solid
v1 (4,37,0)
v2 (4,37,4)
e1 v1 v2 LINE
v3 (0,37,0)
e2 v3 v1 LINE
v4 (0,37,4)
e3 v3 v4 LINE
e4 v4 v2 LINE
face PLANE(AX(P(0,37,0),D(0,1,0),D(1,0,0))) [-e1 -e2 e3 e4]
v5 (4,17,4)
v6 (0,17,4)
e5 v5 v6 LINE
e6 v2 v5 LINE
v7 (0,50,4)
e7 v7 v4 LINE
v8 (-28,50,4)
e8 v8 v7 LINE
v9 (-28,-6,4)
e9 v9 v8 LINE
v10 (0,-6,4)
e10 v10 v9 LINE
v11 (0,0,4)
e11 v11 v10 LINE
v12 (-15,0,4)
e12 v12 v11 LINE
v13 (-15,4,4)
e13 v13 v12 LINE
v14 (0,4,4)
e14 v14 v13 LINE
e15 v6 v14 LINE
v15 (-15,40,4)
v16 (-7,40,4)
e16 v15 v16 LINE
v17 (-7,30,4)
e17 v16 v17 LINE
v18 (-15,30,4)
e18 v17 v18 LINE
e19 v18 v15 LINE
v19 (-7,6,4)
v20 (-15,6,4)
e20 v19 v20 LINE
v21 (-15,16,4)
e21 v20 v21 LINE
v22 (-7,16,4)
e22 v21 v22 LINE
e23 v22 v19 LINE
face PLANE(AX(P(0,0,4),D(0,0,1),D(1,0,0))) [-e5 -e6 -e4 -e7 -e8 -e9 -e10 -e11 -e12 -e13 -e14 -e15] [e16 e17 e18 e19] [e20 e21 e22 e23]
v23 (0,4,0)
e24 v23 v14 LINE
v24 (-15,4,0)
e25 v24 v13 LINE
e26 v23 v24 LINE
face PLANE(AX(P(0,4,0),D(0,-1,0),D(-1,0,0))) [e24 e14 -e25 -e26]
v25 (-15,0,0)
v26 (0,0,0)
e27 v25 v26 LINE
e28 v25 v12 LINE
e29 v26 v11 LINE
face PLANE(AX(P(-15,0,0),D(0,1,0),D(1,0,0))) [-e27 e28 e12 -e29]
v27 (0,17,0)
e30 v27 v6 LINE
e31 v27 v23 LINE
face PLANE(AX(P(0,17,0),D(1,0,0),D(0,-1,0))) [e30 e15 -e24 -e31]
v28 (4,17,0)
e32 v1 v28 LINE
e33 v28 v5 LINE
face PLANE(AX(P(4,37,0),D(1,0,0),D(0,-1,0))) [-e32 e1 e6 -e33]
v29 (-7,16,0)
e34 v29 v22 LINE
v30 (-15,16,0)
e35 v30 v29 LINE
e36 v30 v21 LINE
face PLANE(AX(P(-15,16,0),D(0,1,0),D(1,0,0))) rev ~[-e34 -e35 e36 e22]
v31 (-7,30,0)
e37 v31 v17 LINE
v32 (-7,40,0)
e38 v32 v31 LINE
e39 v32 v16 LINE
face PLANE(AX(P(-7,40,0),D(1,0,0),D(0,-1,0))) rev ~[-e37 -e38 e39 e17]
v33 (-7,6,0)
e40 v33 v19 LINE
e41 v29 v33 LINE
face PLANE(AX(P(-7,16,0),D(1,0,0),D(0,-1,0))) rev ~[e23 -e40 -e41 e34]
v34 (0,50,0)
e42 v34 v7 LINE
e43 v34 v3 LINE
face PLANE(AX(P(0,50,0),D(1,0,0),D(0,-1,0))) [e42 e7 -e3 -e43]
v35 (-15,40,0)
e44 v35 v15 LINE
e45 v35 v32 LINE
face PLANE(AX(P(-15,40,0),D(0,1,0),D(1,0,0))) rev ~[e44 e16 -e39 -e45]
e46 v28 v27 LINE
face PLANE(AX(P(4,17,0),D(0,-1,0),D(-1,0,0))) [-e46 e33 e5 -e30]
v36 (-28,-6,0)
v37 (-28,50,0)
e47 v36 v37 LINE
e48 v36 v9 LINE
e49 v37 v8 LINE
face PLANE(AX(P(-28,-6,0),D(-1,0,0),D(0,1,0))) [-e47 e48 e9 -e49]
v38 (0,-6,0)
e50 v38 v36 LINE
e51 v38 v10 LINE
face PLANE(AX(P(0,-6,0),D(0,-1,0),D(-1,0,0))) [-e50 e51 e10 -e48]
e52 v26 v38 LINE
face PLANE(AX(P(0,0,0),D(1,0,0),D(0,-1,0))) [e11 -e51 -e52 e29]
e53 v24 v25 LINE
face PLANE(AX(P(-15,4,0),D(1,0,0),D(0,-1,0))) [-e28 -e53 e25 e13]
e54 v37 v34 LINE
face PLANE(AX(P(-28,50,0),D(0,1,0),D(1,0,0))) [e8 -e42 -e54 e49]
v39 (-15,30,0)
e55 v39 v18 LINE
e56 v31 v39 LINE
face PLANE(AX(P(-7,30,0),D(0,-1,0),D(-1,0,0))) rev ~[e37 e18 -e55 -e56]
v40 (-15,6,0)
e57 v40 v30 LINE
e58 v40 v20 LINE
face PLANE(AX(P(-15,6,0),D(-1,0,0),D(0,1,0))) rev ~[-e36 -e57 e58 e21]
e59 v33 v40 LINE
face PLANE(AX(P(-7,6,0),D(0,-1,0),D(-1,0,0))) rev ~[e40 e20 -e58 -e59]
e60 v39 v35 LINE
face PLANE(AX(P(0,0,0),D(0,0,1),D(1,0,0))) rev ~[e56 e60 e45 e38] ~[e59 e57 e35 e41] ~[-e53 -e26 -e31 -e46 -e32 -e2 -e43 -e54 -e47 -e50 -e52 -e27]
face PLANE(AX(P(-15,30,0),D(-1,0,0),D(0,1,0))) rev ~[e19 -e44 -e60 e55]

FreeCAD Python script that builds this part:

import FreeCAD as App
import Part
import Sketcher
Q = App.Units.Quantity

doc = App.newDocument("Part")
body = doc.addObject("PartDesign::Body", "Body")

# Sketch on XY plane
sketch1 = body.newObject("Sketcher::SketchObject", "Sketch")
sketch1.AttachmentSupport = (doc.getObject("XY_Plane"), [""])
sketch1.MapMode = "FlatFace"
sketch1.addGeometry([
    Part.LineSegment(App.Vector(0, -6, 0), App.Vector(0, 0, 0)),  # 0
    Part.LineSegment(App.Vector(0, 0, 0), App.Vector(-15, 0, 0)),  # 1
    Part.LineSegment(App.Vector(-15, 0, 0), App.Vector(-15, 4, 0)),  # 2
    Part.LineSegment(App.Vector(-15, 4, 0), App.Vector(0, 4, 0)),  # 3
    Part.LineSegment(App.Vector(0, 4, 0), App.Vector(0, 17, 0)),  # 4
    Part.LineSegment(App.Vector(0, 17, 0), App.Vector(4, 17, 0)),  # 5
    Part.LineSegment(App.Vector(4, 17, 0), App.Vector(4, 37, 0)),  # 6
    Part.LineSegment(App.Vector(4, 37, 0), App.Vector(0, 37, 0)),  # 7
    Part.LineSegment(App.Vector(0, 37, 0), App.Vector(0, 50, 0)),  # 8
    Part.LineSegment(App.Vector(0, 50, 0), App.Vector(-28, 50, 0)),  # 9
    Part.LineSegment(App.Vector(-28, 50, 0), App.Vector(-28, -6, 0)),  # 10
    Part.LineSegment(App.Vector(-28, -6, 0), App.Vector(0, -6, 0)),  # 11
    Part.LineSegment(App.Vector(-7, 16, 0), App.Vector(-7, 6, 0)),  # 12
    Part.LineSegment(App.Vector(-7, 6, 0), App.Vector(-15, 6, 0)),  # 13
    Part.LineSegment(App.Vector(-15, 6, 0), App.Vector(-15, 16, 0)),  # 14
    Part.LineSegment(App.Vector(-15, 16, 0), App.Vector(-7, 16, 0)),  # 15
    Part.LineSegment(App.Vector(-7, 40, 0), App.Vector(-7, 30, 0)),  # 16
    Part.LineSegment(App.Vector(-7, 30, 0), App.Vector(-15, 30, 0)),  # 17
    Part.LineSegment(App.Vector(-15, 30, 0), App.Vector(-15, 40, 0)),  # 18
    Part.LineSegment(App.Vector(-15, 40, 0), App.Vector(-7, 40, 0)),  # 19
], False)
sketch1.addConstraint([
    Sketcher.Constraint("Coincident", 0, 2, 1, 1),
    Sketcher.Constraint("Coincident", 1, 2, 2, 1),
    Sketcher.Constraint("Coincident", 2, 2, 3, 1),
    Sketcher.Constraint("Coincident", 3, 2, 4, 1),
    Sketcher.Constraint("Coincident", 4, 2, 5, 1),
    Sketcher.Constraint("Coincident", 5, 2, 6, 1),
    Sketcher.Constraint("Coincident", 6, 2, 7, 1),
    Sketcher.Constraint("Coincident", 7, 2, 8, 1),
    Sketcher.Constraint("Coincident", 8, 2, 9, 1),
    Sketcher.Constraint("Coincident", 9, 2, 10, 1),
    Sketcher.Constraint("Coincident", 10, 2, 11, 1),
    Sketcher.Constraint("Coincident", 11, 2, 0, 1),
    Sketcher.Constraint("Coincident", 12, 2, 13, 1),
    Sketcher.Constraint("Coincident", 13, 2, 14, 1),
    Sketcher.Constraint("Coincident", 14, 2, 15, 1),
    Sketcher.Constraint("Coincident", 15, 2, 12, 1),
    Sketcher.Constraint("Coincident", 16, 2, 17, 1),
    Sketcher.Constraint("Coincident", 17, 2, 18, 1),
    Sketcher.Constraint("Coincident", 18, 2, 19, 1),
    Sketcher.Constraint("Coincident", 19, 2, 16, 1),
    Sketcher.Constraint("Vertical", 0),
    Sketcher.Constraint("Horizontal", 1),
    Sketcher.Constraint("Vertical", 2),
    Sketcher.Constraint("Horizontal", 3),
    Sketcher.Constraint("Vertical", 4),
    Sketcher.Constraint("Horizontal", 5),
    Sketcher.Constraint("Vertical", 6),
    Sketcher.Constraint("Horizontal", 7),
    Sketcher.Constraint("Vertical", 8),
    Sketcher.Constraint("Horizontal", 9),
    Sketcher.Constraint("Vertical", 10),
    Sketcher.Constraint("Horizontal", 11),
    Sketcher.Constraint("Vertical", 12),
    Sketcher.Constraint("Horizontal", 13),
    Sketcher.Constraint("Vertical", 14),
    Sketcher.Constraint("Horizontal", 15),
    Sketcher.Constraint("Vertical", 16),
    Sketcher.Constraint("Horizontal", 17),
    Sketcher.Constraint("Vertical", 18),
    Sketcher.Constraint("Horizontal", 19),
    Sketcher.Constraint("Coincident", 0, 2, -1, 1),
    Sketcher.Constraint("PointOnObject", 3, 2, -2),
    Sketcher.Constraint("PointOnObject", 7, 2, -2),
    Sketcher.Constraint("Vertical", 2, 2, 13, 2),
    Sketcher.Constraint("Vertical", 15, 2, 16, 2),
    Sketcher.Constraint("Vertical", 14, 2, 17, 2),
    Sketcher.Constraint("Equal", 7, 2),
    Sketcher.Constraint("Equal", 4, 8),
    Sketcher.Constraint("Equal", 14, 16),
    Sketcher.Constraint("DistanceX", 1, 2, 1, 1, Q("15 mm")),
    Sketcher.Constraint("DistanceX", 5, 1, 5, 2, Q("4 mm")),
    Sketcher.Constraint("DistanceX", 9, 2, 9, 1, Q("28 mm")),
    Sketcher.Constraint("DistanceX", 13, 2, 13, 1, Q("8 mm")),
    Sketcher.Constraint("DistanceY", 0, 1, 0, 2, Q("6 mm")),
    Sketcher.Constraint("DistanceY", 4, 1, 4, 2, Q("13 mm")),
    Sketcher.Constraint("DistanceY", 6, 1, 6, 2, Q("20 mm")),
    Sketcher.Constraint("DistanceY", 12, 2, 12, 1, Q("10 mm")),
    Sketcher.Constraint("DistanceY", -1, 1, 12, 2, Q("6 mm")),
    Sketcher.Constraint("DistanceY", 16, 2, 7, 2, Q("7 mm")),
])
pad1 = body.newObject("PartDesign::Pad", "Pad")
pad1.Profile = sketch1
pad1.Length = 4

doc.recompute()
